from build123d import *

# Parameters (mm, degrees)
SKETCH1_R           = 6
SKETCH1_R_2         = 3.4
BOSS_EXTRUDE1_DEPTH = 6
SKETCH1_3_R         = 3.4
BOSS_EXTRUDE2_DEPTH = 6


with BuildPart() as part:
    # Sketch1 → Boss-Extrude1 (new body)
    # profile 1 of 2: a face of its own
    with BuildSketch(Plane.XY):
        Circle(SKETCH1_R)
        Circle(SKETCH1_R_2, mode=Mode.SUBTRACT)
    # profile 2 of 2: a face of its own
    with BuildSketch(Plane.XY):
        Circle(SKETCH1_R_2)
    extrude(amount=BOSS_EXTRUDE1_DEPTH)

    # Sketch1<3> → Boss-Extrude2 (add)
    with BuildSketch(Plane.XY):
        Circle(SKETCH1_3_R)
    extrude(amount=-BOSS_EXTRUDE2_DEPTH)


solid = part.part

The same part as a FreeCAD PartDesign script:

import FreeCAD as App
import Part
import Sketcher

V = App.Vector

doc = App.newDocument("Part")
body = doc.addObject("PartDesign::Body", "Body")

# Sketch on XY plane
sketch1 = body.newObject("Sketcher::SketchObject", "Sketch")
sketch1.AttachmentSupport = (doc.getObject("XY_Plane"), [""])
sketch1.MapMode = "FlatFace"
sketch1.addGeometry(Part.Circle(V(0, 0, 0), V(0, 0, 1), 6), False)
sketch1.addConstraint([
    Sketcher.Constraint("Coincident", 0, 3, -1, 1),
    Sketcher.Constraint("Diameter", 0, 12.0),
])
pad1 = body.newObject("PartDesign::Pad", "Pad")
pad1.Profile = sketch1
pad1.Length = 6

# Sketch on XY plane
sketch2 = body.newObject("Sketcher::SketchObject", "Sketch001")
sketch2.AttachmentSupport = (doc.getObject("XY_Plane"), [""])
sketch2.MapMode = "FlatFace"
sketch2.addGeometry(Part.Circle(V(0, 0, 0), V(0, 0, 1), 3.4), False)
sketch2.addConstraint([
    Sketcher.Constraint("Coincident", 0, 3, -1, 1),
    Sketcher.Constraint("Diameter", 0, 6.8),
])
pad2 = body.newObject("PartDesign::Pad", "Pad001")
pad2.Profile = sketch2
pad2.Length = 6
pad2.Reversed = True

doc.recompute()
